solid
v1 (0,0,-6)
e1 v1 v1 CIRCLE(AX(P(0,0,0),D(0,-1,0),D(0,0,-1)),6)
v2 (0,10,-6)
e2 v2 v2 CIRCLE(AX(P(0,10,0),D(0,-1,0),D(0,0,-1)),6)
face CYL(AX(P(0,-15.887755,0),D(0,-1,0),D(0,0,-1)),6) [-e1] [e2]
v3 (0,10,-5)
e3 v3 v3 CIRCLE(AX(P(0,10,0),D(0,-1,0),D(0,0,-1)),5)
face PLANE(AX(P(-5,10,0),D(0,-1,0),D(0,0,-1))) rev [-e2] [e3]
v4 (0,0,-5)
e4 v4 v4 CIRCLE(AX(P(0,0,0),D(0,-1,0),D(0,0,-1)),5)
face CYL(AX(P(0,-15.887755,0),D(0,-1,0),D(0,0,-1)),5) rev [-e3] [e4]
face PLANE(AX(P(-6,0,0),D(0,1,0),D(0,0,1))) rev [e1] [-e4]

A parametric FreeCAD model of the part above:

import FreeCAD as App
import Part
import Sketcher

V = App.Vector
Q = App.Units.Quantity


def add_polygon(sketch, points):
    """Adds a closed chain of lines whose ends are joined by coincident constraints."""
    first, n = sketch.GeometryCount, len(points)
    for a, b in zip(points, points[1:] + points[:1]):
        sketch.addGeometry(Part.LineSegment(App.Vector(*a, 0), App.Vector(*b, 0)), False)
    for i in range(n):
        sketch.addConstraint(Sketcher.Constraint("Coincident", first + i, 2, first + (i + 1) % n, 1))

doc = App.newDocument("Part")
body = doc.addObject("PartDesign::Body", "Body")

# Sketch on XY plane
sketch1 = doc.addObject("Sketcher::SketchObject", "Sketch")
body.addObject(sketch1)
sketch1.AttachmentSupport = (doc.XY_Plane, [""])
sketch1.MapMode = "FlatFace"
add_polygon(sketch1, [(-6, 10), (-6, 0), (-5, 0), (-5, 10)])  # lines 0-3
sketch1.addConstraint([
    Sketcher.Constraint("Vertical", 0),
    Sketcher.Constraint("Horizontal", 1),
    Sketcher.Constraint("Vertical", 2),
    Sketcher.Constraint("Horizontal", 3),
    Sketcher.Constraint("PointOnObject", 0, 2, -1),
    Sketcher.Constraint("DistanceX", 1, 1, 1, 2, Q("1 mm")),
    Sketcher.Constraint("DistanceY", 0, 2, 0, 1, Q("10 mm")),
    Sketcher.Constraint("DistanceX", 0, 2, -1, 1, Q("6 mm")),
])
revolution = doc.addObject("PartDesign::Revolution", "Revolution")
body.addObject(revolution)
revolution.Profile = sketch1
revolution.ReferenceAxis = (sketch1, ["V_Axis"])
revolution.Angle = 360

doc.recompute()
